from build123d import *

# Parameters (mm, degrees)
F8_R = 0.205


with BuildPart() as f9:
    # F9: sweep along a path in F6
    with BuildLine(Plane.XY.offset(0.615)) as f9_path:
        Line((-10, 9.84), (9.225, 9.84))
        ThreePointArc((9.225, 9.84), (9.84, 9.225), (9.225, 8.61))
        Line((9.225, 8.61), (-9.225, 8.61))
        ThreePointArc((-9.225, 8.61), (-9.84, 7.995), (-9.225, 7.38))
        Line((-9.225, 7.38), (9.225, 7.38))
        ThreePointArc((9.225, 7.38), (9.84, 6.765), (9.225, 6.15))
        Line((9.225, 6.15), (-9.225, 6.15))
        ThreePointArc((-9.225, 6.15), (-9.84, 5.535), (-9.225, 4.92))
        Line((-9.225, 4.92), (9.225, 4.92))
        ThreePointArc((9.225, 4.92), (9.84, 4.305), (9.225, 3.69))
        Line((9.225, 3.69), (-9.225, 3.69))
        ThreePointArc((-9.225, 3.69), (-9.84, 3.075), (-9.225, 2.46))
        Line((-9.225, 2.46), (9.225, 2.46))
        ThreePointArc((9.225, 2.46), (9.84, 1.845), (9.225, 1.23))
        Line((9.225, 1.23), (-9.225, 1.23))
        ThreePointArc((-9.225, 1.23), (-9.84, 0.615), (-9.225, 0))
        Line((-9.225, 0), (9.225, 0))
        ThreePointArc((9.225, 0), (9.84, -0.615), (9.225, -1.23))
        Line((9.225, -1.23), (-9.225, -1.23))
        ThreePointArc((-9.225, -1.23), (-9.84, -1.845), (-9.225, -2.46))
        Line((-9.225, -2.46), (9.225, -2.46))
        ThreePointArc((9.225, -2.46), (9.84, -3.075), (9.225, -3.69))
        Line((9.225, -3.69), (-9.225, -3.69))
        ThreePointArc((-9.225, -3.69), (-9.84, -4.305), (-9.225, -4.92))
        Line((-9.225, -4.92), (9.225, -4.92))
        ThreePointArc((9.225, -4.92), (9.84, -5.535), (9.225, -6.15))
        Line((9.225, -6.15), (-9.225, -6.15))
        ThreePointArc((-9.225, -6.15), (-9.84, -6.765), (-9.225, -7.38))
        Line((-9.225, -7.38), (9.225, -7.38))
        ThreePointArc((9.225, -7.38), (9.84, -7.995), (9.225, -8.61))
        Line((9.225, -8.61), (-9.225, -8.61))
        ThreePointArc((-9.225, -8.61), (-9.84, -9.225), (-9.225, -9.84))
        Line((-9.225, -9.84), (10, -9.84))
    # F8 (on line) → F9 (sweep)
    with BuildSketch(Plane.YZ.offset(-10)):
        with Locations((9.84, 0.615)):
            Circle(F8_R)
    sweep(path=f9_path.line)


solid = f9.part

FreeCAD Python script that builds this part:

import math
import FreeCAD as App
import Part
import Sketcher

V = App.Vector

doc = App.newDocument("Part")
body = doc.addObject("PartDesign::Body", "Body")

sketch1 = doc.addObject("Sketcher::SketchObject", "Sketch")
body.addObject(sketch1)
sketch1.AttachmentSupport = (doc.YZ_Plane, [""])
sketch1.MapMode = "FlatFace"
sketch1.AttachmentOffset = App.Placement(V(0, 0, -10), App.Rotation())
sketch1.addGeometry(Part.Circle(V(9.84, 0.61, 0), V(0, 0, 1), 0.2), False)
sketch1.addConstraint([
    Sketcher.Constraint("Diameter", 0, 0.41),
    Sketcher.Constraint("DistanceX", -1, 1, 0, 3, 9.84),
    Sketcher.Constraint("DistanceY", -1, 1, 0, 3, 0.615),
])

sketch2 = doc.addObject("Sketcher::SketchObject", "Sketch001")
body.addObject(sketch2)
sketch2.AttachmentSupport = (doc.XY_Plane, [""])
sketch2.MapMode = "FlatFace"
sketch2.AttachmentOffset = App.Placement(V(0, 0, 0.615), App.Rotation())
sketch2.addGeometry([
    Part.LineSegment(V(-10, 9.8, 0), V(9.2, 9.8, 0)),
    Part.ArcOfCircle(Part.Circle(V(9.2, 9.2, 0), V(0, 0, 1), 0.6), math.radians(-90), math.radians(90)),
    Part.LineSegment(V(9.2, 8.6, 0), V(-9.2, 8.6, 0)),
    Part.ArcOfCircle(Part.Circle(V(-9.2, 8, 0), V(0, 0, 1), 0.6), math.radians(90), math.radians(270)),
    Part.LineSegment(V(-9.2, 7.4, 0), V(9.2, 7.4, 0)),
    Part.ArcOfCircle(Part.Circle(V(9.2, 6.8, 0), V(0, 0, 1), 0.6), math.radians(-90), math.radians(90)),
    Part.LineSegment(V(9.2, 6.2, 0), V(-9.2, 6.2, 0)),
    Part.ArcOfCircle(Part.Circle(V(-9.2, 5.5, 0), V(0, 0, 1), 0.6), math.radians(90), math.radians(270)),
    Part.LineSegment(V(-9.2, 4.9, 0), V(9.2, 4.9, 0)),
    Part.ArcOfCircle(Part.Circle(V(9.2, 4.3, 0), V(0, 0, 1), 0.6), math.radians(-90), math.radians(90)),
    Part.LineSegment(V(9.2, 3.7, 0), V(-9.2, 3.7, 0)),
    Part.ArcOfCircle(Part.Circle(V(-9.2, 3.1, 0), V(0, 0, 1), 0.6), math.radians(90), math.radians(270)),
    Part.LineSegment(V(-9.2, 2.5, 0), V(9.2, 2.5, 0)),
    Part.ArcOfCircle(Part.Circle(V(9.2, 1.8, 0), V(0, 0, 1), 0.6), math.radians(-90), math.radians(90)),
    Part.LineSegment(V(9.2, 1.2, 0), V(-9.2, 1.2, 0)),
    Part.ArcOfCircle(Part.Circle(V(-9.2, 0.6, 0), V(0, 0, 1), 0.6), math.radians(90), math.radians(270)),
    Part.LineSegment(V(-9.2, 0, 0), V(9.2, 0, 0)),
    Part.ArcOfCircle(Part.Circle(V(9.2, -0.6, 0), V(0, 0, 1), 0.6), math.radians(-90), math.radians(90)),
    Part.LineSegment(V(9.2, -1.2, 0), V(-9.2, -1.2, 0)),
    Part.ArcOfCircle(Part.Circle(V(-9.2, -1.8, 0), V(0, 0, 1), 0.6), math.radians(90), math.radians(270)),
    Part.LineSegment(V(-9.2, -2.5, 0), V(9.2, -2.5, 0)),
    Part.ArcOfCircle(Part.Circle(V(9.2, -3.1, 0), V(0, 0, 1), 0.6), math.radians(-90), math.radians(90)),
    Part.LineSegment(V(9.2, -3.7, 0), V(-9.2, -3.7, 0)),
    Part.ArcOfCircle(Part.Circle(V(-9.2, -4.3, 0), V(0, 0, 1), 0.6), math.radians(90), math.radians(270)),
    Part.LineSegment(V(-9.2, -4.9, 0), V(9.2, -4.9, 0)),
    Part.ArcOfCircle(Part.Circle(V(9.2, -5.5, 0), V(0, 0, 1), 0.6), math.radians(-90), math.radians(90)),
    Part.LineSegment(V(9.2, -6.2, 0), V(-9.2, -6.2, 0)),
    Part.ArcOfCircle(Part.Circle(V(-9.2, -6.8, 0), V(0, 0, 1), 0.6), math.radians(90), math.radians(270)),
    Part.LineSegment(V(-9.2, -7.4, 0), V(9.2, -7.4, 0)),
    Part.ArcOfCircle(Part.Circle(V(9.2, -8, 0), V(0, 0, 1), 0.6), math.radians(-90), math.radians(90)),
    Part.LineSegment(V(9.2, -8.6, 0), V(-9.2, -8.6, 0)),
    Part.ArcOfCircle(Part.Circle(V(-9.2, -9.2, 0), V(0, 0, 1), 0.6), math.radians(90), math.radians(270)),
    Part.LineSegment(V(-9.2, -9.8, 0), V(10, -9.8, 0)),
], False)
sketch2.addConstraint([
    Sketcher.Constraint("Tangent", 0, 2, 1, 2),
    Sketcher.Constraint("Tangent", 1, 1, 2, 1),
    Sketcher.Constraint("Tangent", 2, 2, 3, 1),
    Sketcher.Constraint("Tangent", 3, 2, 4, 1),
    Sketcher.Constraint("Tangent", 4, 2, 5, 2),
    Sketcher.Constraint("Tangent", 5, 1, 6, 1),
    Sketcher.Constraint("Tangent", 6, 2, 7, 1),
    Sketcher.Constraint("Tangent", 7, 2, 8, 1),
    Sketcher.Constraint("Tangent", 8, 2, 9, 2),
    Sketcher.Constraint("Tangent", 9, 1, 10, 1),
    Sketcher.Constraint("Tangent", 10, 2, 11, 1),
    Sketcher.Constraint("Tangent", 11, 2, 12, 1),
    Sketcher.Constraint("Tangent", 12, 2, 13, 2),
    Sketcher.Constraint("Tangent", 13, 1, 14, 1),
    Sketcher.Constraint("Tangent", 14, 2, 15, 1),
    Sketcher.Constraint("Tangent", 15, 2, 16, 1),
    Sketcher.Constraint("Tangent", 16, 2, 17, 2),
    Sketcher.Constraint("Tangent", 17, 1, 18, 1),
    Sketcher.Constraint("Tangent", 18, 2, 19, 1),
    Sketcher.Constraint("Tangent", 19, 2, 20, 1),
    Sketcher.Constraint("Tangent", 20, 2, 21, 2),
    Sketcher.Constraint("Tangent", 21, 1, 22, 1),
    Sketcher.Constraint("Tangent", 22, 2, 23, 1),
    Sketcher.Constraint("Tangent", 23, 2, 24, 1),
    Sketcher.Constraint("Tangent", 24, 2, 25, 2),
    Sketcher.Constraint("Tangent", 25, 1, 26, 1),
    Sketcher.Constraint("Tangent", 26, 2, 27, 1),
    Sketcher.Constraint("Tangent", 27, 2, 28, 1),
    Sketcher.Constraint("Tangent", 28, 2, 29, 2),
    Sketcher.Constraint("Tangent", 29, 1, 30, 1),
    Sketcher.Constraint("Tangent", 30, 2, 31, 1),
    Sketcher.Constraint("Tangent", 31, 2, 32, 1),
    Sketcher.Constraint("Horizontal", 0),
    Sketcher.Constraint("Horizontal", 2),
    Sketcher.Constraint("Horizontal", 4),
    Sketcher.Constraint("Horizontal", 6),
    Sketcher.Constraint("Horizontal", 8),
    Sketcher.Constraint("Horizontal", 10),
    Sketcher.Constraint("Horizontal", 12),
    Sketcher.Constraint("Horizontal", 14),
    Sketcher.Constraint("Horizontal", 16),
    Sketcher.Constraint("Horizontal", 18),
    Sketcher.Constraint("Horizontal", 20),
    Sketcher.Constraint("Horizontal", 22),
    Sketcher.Constraint("Horizontal", 24),
    Sketcher.Constraint("Horizontal", 26),
    Sketcher.Constraint("Horizontal", 28),
    Sketcher.Constraint("Horizontal", 30),
    Sketcher.Constraint("Horizontal", 32),
    Sketcher.Constraint("Equal", 1, 3),
    Sketcher.Constraint("Equal", 3, 5),
    Sketcher.Constraint("Equal", 5, 7),
    Sketcher.Constraint("Equal", 7, 9),
    Sketcher.Constraint("Equal", 9, 11),
    Sketcher.Constraint("Equal", 11, 13),
    Sketcher.Constraint("Equal", 13, 15),
    Sketcher.Constraint("Equal", 15, 17),
    Sketcher.Constraint("Equal", 17, 19),
    Sketcher.Constraint("Equal", 19, 21),
    Sketcher.Constraint("Equal", 21, 23),
    Sketcher.Constraint("Equal", 23, 25),
    Sketcher.Constraint("Equal", 25, 27),
    Sketcher.Constraint("Equal", 27, 29),
    Sketcher.Constraint("Equal", 29, 31),
    Sketcher.Constraint("Symmetric", 15, 3, 17, 3, -1, 1),
    Sketcher.Constraint("Vertical", 1, 3, 5, 3),
    Sketcher.Constraint("Vertical", 3, 3, 7, 3),
    Sketcher.Constraint("Vertical", 5, 3, 9, 3),
    Sketcher.Constraint("Vertical", 7, 3, 11, 3),
    Sketcher.Constraint("Vertical", 9, 3, 13, 3),
    Sketcher.Constraint("Vertical", 11, 3, 15, 3),
    Sketcher.Constraint("Vertical", 13, 3, 17, 3),
    Sketcher.Constraint("Vertical", 15, 3, 19, 3),
    Sketcher.Constraint("Vertical", 17, 3, 21, 3),
    Sketcher.Constraint("Vertical", 19, 3, 23, 3),
    Sketcher.Constraint("Vertical", 21, 3, 25, 3),
    Sketcher.Constraint("Vertical", 23, 3, 27, 3),
    Sketcher.Constraint("Vertical", 25, 3, 29, 3),
    Sketcher.Constraint("Vertical", 27, 3, 31, 3),
    Sketcher.Constraint("Equal", 0, 32),
    Sketcher.Constraint("DistanceX", 0, 1, -1, 1, 10.0),
    Sketcher.Constraint("Radius", 1, 0.615),
    Sketcher.Constraint("DistanceX", 2, 2, 2, 1, 18.45),
])
doc.recompute()

additivepipe = doc.addObject("PartDesign::AdditivePipe", "AdditivePipe")
body.addObject(additivepipe)
additivepipe.Profile = sketch1
additivepipe.Spine = (sketch2, ["Edge1", "Edge2", "Edge3", "Edge4", "Edge5", "Edge6", "Edge7", "Edge8", "Edge9", "Edge10", "Edge11", "Edge12", "Edge13", "Edge14", "Edge15", "Edge16", "Edge17", "Edge18", "Edge19", "Edge20", "Edge21", "Edge22", "Edge23", "Edge24", "Edge25", "Edge26", "Edge27", "Edge28", "Edge29", "Edge30", "Edge31", "Edge32", "Edge33"])

doc.recompute()
